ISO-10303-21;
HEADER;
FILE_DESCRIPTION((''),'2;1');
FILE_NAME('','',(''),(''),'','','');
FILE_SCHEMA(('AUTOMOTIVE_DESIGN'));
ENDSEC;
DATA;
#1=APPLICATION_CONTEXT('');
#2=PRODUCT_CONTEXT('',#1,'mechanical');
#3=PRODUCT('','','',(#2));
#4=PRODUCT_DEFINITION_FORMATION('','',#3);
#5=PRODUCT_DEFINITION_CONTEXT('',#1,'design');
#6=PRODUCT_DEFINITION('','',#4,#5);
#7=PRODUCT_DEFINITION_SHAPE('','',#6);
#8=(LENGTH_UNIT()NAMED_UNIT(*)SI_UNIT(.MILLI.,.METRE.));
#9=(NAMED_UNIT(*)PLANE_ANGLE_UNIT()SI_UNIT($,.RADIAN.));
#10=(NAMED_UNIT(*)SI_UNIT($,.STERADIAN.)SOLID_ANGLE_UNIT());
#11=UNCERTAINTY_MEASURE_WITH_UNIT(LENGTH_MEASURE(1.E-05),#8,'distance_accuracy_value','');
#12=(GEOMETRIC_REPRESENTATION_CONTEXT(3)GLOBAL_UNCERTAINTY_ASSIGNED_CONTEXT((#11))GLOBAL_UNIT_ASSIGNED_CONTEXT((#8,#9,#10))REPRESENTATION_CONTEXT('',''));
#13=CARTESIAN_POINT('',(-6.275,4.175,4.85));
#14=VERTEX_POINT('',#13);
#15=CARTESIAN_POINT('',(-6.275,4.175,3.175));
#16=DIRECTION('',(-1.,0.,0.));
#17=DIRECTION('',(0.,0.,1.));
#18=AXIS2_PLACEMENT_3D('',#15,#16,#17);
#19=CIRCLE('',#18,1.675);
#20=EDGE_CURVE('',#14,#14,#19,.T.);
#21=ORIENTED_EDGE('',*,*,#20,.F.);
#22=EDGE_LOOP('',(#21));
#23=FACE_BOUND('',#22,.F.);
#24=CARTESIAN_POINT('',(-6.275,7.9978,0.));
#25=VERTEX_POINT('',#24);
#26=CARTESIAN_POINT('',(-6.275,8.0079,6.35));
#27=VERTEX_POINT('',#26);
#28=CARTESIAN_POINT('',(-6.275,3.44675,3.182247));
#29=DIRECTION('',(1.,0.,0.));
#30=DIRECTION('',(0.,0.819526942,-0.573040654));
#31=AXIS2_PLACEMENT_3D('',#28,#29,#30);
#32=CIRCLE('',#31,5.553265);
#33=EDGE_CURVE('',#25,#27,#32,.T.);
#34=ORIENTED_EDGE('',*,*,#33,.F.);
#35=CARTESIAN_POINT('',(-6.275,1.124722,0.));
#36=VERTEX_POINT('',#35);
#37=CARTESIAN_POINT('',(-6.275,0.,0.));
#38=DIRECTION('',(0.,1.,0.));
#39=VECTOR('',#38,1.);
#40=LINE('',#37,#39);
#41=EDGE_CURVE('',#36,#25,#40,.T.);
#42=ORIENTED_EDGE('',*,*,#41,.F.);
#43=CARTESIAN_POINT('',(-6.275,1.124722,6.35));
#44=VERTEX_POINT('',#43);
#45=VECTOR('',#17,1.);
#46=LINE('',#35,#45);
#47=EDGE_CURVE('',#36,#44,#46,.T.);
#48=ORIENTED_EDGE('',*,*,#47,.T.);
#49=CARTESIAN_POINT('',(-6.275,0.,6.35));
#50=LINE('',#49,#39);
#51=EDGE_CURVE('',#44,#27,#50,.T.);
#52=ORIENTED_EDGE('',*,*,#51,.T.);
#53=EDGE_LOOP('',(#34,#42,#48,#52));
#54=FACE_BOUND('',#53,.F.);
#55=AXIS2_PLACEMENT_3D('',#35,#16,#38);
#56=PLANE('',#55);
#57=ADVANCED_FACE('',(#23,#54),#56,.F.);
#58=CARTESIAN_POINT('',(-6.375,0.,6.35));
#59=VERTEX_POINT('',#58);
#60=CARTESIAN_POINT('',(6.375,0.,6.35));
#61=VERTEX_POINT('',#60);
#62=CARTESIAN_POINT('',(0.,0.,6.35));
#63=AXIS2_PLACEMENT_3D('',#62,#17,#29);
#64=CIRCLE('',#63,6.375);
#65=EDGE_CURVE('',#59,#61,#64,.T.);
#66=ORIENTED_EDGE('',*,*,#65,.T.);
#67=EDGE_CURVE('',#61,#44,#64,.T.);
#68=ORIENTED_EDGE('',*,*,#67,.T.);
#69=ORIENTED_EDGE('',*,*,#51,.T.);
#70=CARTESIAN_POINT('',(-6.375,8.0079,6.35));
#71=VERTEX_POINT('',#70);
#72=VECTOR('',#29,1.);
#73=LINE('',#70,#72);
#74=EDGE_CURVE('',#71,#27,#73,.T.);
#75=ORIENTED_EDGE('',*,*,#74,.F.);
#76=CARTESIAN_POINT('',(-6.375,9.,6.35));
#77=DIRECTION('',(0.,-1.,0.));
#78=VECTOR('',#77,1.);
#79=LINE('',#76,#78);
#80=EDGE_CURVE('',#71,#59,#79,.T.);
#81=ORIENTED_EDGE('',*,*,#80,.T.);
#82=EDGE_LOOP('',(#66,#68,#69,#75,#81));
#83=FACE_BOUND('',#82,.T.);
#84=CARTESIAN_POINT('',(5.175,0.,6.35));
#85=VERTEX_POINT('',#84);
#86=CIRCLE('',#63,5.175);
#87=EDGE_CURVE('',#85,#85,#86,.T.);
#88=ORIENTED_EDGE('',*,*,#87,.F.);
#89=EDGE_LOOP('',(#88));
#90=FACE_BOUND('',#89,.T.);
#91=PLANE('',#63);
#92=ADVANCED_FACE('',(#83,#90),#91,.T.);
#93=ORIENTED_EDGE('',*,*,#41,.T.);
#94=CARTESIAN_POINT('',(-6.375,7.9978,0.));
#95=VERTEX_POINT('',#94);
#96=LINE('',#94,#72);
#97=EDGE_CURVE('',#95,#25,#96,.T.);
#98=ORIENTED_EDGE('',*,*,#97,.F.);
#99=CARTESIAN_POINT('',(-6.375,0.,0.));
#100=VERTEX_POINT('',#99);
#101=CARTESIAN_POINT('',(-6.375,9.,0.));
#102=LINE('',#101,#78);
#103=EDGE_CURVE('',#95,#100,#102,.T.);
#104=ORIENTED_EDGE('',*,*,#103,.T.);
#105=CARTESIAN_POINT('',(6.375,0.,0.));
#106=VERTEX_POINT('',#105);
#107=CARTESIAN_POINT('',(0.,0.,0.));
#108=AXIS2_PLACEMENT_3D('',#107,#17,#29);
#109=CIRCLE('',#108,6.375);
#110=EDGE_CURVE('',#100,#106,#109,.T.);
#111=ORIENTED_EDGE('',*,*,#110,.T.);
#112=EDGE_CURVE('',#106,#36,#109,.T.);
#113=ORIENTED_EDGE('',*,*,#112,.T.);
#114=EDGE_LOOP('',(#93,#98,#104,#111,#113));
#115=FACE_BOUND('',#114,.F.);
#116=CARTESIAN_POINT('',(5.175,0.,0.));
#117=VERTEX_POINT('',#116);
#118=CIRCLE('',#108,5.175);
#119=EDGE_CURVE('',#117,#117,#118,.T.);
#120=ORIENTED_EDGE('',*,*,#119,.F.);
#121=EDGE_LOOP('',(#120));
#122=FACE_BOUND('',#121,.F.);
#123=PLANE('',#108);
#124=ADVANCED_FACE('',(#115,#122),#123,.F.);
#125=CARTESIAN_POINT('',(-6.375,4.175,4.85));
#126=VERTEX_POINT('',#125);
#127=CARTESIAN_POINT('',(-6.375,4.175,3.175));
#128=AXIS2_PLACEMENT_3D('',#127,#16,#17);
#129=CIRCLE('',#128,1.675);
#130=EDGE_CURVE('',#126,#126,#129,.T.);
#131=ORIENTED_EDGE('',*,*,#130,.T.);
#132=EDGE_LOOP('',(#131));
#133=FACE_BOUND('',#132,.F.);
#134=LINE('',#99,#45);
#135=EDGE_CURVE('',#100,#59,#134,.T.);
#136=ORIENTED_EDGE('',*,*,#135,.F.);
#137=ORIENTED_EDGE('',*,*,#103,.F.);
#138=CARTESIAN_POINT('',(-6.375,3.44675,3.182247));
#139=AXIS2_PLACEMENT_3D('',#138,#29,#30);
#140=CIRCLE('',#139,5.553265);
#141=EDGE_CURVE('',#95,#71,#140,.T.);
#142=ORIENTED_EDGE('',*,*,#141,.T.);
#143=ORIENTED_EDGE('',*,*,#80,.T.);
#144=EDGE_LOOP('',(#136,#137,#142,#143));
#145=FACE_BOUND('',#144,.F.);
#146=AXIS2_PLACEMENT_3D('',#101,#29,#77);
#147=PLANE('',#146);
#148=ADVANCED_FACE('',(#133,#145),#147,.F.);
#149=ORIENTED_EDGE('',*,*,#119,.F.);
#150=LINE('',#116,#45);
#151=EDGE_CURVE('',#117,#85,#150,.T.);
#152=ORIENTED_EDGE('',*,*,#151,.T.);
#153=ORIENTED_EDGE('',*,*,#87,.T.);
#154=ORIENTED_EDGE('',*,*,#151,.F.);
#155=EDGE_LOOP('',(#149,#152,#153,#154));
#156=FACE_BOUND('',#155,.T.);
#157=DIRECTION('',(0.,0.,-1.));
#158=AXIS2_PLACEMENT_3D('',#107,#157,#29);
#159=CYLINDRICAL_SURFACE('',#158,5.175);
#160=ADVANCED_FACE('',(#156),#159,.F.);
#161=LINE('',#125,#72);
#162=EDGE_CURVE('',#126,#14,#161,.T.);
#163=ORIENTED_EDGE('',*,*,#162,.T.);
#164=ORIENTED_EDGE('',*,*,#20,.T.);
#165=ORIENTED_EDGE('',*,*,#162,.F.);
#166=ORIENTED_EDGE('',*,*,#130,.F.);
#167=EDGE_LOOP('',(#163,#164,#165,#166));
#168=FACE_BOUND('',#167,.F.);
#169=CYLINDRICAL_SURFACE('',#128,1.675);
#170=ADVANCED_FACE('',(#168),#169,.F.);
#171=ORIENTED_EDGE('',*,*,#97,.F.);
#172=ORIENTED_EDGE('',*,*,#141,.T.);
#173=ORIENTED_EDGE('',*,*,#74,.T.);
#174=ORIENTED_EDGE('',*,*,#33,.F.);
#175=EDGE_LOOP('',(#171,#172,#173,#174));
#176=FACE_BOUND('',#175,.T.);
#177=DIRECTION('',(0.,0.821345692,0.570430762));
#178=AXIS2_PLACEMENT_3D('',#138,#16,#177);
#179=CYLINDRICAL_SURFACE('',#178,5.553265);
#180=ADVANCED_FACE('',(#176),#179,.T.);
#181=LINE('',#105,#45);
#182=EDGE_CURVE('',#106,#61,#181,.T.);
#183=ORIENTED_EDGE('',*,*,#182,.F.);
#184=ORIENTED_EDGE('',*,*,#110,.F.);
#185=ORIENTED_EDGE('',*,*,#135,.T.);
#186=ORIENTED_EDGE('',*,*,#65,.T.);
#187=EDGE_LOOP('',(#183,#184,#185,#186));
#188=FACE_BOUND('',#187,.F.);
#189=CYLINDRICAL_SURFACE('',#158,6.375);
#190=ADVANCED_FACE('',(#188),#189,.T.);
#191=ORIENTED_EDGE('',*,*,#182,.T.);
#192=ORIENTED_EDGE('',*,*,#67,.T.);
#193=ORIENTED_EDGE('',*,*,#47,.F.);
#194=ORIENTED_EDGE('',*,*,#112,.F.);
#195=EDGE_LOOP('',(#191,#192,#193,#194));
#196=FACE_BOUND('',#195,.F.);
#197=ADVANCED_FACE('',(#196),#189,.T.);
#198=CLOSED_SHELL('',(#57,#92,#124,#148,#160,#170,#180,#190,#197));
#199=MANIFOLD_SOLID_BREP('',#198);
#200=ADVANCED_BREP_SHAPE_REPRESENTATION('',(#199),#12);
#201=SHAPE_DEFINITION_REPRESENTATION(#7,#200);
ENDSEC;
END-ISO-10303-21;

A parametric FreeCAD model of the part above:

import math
import FreeCAD as App
import Part
import Sketcher

V = App.Vector
Q = App.Units.Quantity

doc = App.newDocument("Part")
body = doc.addObject("PartDesign::Body", "Body")

# Sketch on XY plane
sketch1 = doc.addObject("Sketcher::SketchObject", "Sketch")
body.addObject(sketch1)
sketch1.AttachmentSupport = (doc.XY_Plane, [""])
sketch1.MapMode = "FlatFace"
sketch1.addGeometry([
    Part.LineSegment(V(-6.28, 1.12, 0), V(-6.28, 9, 0)),  # 0
    Part.LineSegment(V(-6.28, 9, 0), V(-6.38, 9, 0)),  # 1
    Part.LineSegment(V(-6.38, 9, 0), V(-6.38, 0, 0)),  # 2
    Part.ArcOfCircle(Part.Circle(V(0, 0, 0), V(0, 0, 1), 6.38), math.radians(180), math.radians(530)),  # 3
    Part.Circle(V(0, 0, 0), V(0, 0, 1), 5.17),  # 4
], False)
sketch1.addConstraint([
    Sketcher.Constraint("Coincident", 0, 2, 1, 1),
    Sketcher.Constraint("Coincident", 1, 2, 2, 1),
    Sketcher.Constraint("Tangent", 2, 2, 3, 1),
    Sketcher.Constraint("Coincident", 3, 2, 0, 1),
    Sketcher.Constraint("Vertical", 0),
    Sketcher.Constraint("Horizontal", 1),
    Sketcher.Constraint("Vertical", 2),
    Sketcher.Constraint("Coincident", 3, 3, -1, 1),
    Sketcher.Constraint("Coincident", 4, 3, -1, 1),
    Sketcher.Constraint("Diameter", 4, Q("10.35 mm")),
    Sketcher.Constraint("DistanceY", 2, 2, 2, 1, Q("9 mm")),
    Sketcher.Constraint("DistanceX", 1, 2, 1, 1, Q("0.1 mm")),
    Sketcher.Constraint("Radius", 3, Q("6.375 mm")),
])
pad1 = doc.addObject("PartDesign::Pad", "Pad")
body.addObject(pad1)
pad1.Profile = sketch1
pad1.Length = 6.35

# Sketch on YZ plane
sketch2 = doc.addObject("Sketcher::SketchObject", "Sketch001")
body.addObject(sketch2)
sketch2.AttachmentSupport = (doc.YZ_Plane, [""])
sketch2.MapMode = "FlatFace"
sketch2.AttachmentOffset = App.Placement(V(0, 0, -6.375), App.Rotation())
sketch2.addGeometry([
    Part.ArcOfCircle(Part.Circle(V(3.4, 3.2, 0), V(0, 0, 1), 5.6), math.radians(0), math.radians(35)),  # 0
    Part.LineSegment(V(8, 6.3, 0), V(9, 6.3, 0)),  # 1
    Part.LineSegment(V(9, 6.3, 0), V(9, 3.2, 0)),  # 2
    Part.ArcOfCircle(Part.Circle(V(3.4, 3.2, 0), V(0, 0, 1), 5.6), math.radians(-35), math.radians(0)),  # 3
    Part.LineSegment(V(9, 3.2, 0), V(9, 0, 0)),  # 4
    Part.LineSegment(V(9, 0, 0), V(8, 0, 0)),  # 5
    Part.Circle(V(4.2, 3.2, 0), V(0, 0, 1), 1.7),  # 6
], False)
sketch2.addConstraint([
    Sketcher.Constraint("Coincident", 0, 2, 1, 1),
    Sketcher.Constraint("Coincident", 1, 2, 2, 1),
    Sketcher.Constraint("Tangent", 2, 2, 0, 1),
    Sketcher.Constraint("Tangent", 3, 2, 4, 1),
    Sketcher.Constraint("Coincident", 4, 2, 5, 1),
    Sketcher.Constraint("Coincident", 5, 2, 3, 1),
    Sketcher.Constraint("Horizontal", 1),
    Sketcher.Constraint("Vertical", 2),
    Sketcher.Constraint("Vertical", 4),
    Sketcher.Constraint("Horizontal", 5),
    Sketcher.Constraint("Coincident", 3, 3, 0, 3),
    Sketcher.Constraint("Equal", 0, 3),
    Sketcher.Constraint("PointOnObject", 4, 2, -1),
    Sketcher.Constraint("Diameter", 6, Q("3.35 mm")),
    Sketcher.Constraint("DistanceX", -1, 1, 1, 2, Q("9 mm")),
    Sketcher.Constraint("DistanceX", 6, 3, 1, 2, Q("4.825 mm")),
    Sketcher.Constraint("Radius", 0, Q("5.5534 mm")),
    Sketcher.Constraint("DistanceX", 1, 1, 1, 2, Q("0.992 mm")),
    Sketcher.Constraint("DistanceY", -1, 1, 0, 2, Q("6.35 mm")),
    Sketcher.Constraint("DistanceY", -1, 1, 6, 3, Q("3.175 mm")),
])
pocket1 = doc.addObject("PartDesign::Pocket", "Pocket")
body.addObject(pocket1)
pocket1.Profile = sketch2
pocket1.Length = 0.1
pocket1.Reversed = True

doc.recompute()
